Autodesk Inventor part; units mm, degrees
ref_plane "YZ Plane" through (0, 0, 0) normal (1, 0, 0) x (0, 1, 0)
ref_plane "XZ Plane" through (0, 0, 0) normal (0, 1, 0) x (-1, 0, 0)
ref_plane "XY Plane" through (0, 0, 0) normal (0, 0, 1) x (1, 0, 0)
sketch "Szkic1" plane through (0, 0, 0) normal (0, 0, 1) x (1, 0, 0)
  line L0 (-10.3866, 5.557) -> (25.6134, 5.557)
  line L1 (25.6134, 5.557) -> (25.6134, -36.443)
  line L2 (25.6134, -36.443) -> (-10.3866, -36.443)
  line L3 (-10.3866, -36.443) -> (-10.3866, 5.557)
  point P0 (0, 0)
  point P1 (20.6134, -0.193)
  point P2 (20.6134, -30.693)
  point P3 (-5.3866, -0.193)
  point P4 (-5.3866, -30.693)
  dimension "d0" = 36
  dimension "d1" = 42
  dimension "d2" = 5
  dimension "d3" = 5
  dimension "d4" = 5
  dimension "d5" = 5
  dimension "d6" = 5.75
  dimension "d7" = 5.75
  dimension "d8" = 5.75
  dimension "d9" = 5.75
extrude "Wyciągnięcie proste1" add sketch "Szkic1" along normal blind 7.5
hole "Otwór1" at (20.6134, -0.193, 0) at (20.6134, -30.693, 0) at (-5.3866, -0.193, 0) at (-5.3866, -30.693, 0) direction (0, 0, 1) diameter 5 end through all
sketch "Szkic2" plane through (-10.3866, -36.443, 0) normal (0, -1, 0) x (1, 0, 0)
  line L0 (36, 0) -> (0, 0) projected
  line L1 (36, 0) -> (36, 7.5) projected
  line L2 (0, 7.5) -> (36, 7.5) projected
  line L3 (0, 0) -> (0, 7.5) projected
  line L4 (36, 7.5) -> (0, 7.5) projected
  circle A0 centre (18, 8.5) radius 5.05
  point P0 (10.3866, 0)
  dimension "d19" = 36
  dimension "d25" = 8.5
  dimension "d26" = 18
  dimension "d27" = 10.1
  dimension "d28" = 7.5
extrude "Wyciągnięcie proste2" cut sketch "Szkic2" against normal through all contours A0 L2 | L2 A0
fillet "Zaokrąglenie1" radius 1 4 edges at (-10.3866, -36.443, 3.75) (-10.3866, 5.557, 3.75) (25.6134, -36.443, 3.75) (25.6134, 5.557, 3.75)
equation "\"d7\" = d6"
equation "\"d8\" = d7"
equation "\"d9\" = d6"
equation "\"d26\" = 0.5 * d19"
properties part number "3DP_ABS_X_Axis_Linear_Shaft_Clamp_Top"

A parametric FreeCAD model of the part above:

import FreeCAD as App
import Part
import Sketcher


def edges_at(feature, points):
    """Names of the edges that pass closest to the given points."""
    edges = feature.Shape.Edges
    near = lambda p: min(range(len(edges)), key=lambda i: edges[i].distToShape(Part.Vertex(*p))[0])
    return sorted({f"Edge{near(p) + 1}" for p in points})

doc = App.newDocument("Part")
body = doc.addObject("PartDesign::Body", "Body")

sketch1 = body.newObject("Sketcher::SketchObject", "Sketch")
sketch1.AttachmentSupport = (doc.getObject("XY_Plane"), [""])
sketch1.MapMode = "FlatFace"
sketch1.addGeometry([
    Part.LineSegment(App.Vector(26, 6, 0), App.Vector(-10, 6, 0)),
    Part.LineSegment(App.Vector(-10, 6, 0), App.Vector(-10, -36, 0)),
    Part.LineSegment(App.Vector(-10, -36, 0), App.Vector(26, -36, 0)),
    Part.LineSegment(App.Vector(26, -36, 0), App.Vector(26, 6, 0)),
], False)
sketch1.addConstraint([
    Sketcher.Constraint("Coincident", 0, 2, 1, 1),
    Sketcher.Constraint("Coincident", 1, 2, 2, 1),
    Sketcher.Constraint("Coincident", 2, 2, 3, 1),
    Sketcher.Constraint("Coincident", 3, 2, 0, 1),
    Sketcher.Constraint("Horizontal", 0),
    Sketcher.Constraint("Vertical", 1),
    Sketcher.Constraint("Horizontal", 2),
    Sketcher.Constraint("Vertical", 3),
    Sketcher.Constraint("DistanceX", 0, 2, 0, 1, 36.0),
    Sketcher.Constraint("DistanceY", 1, 2, 1, 1, 42.0),
    Sketcher.Constraint("DistanceY", -1, 1, 0, 2, 5.557),
    Sketcher.Constraint("DistanceX", 0, 2, -1, 1, 10.3866),
])
pad1 = body.newObject("PartDesign::Pad", "Pad")
pad1.Profile = sketch1
pad1.Length = 7.5

sketch2 = body.newObject("Sketcher::SketchObject", "Sketch001")
sketch2.AttachmentSupport = (doc.getObject("XY_Plane"), [""])
sketch2.MapMode = "FlatFace"
sketch2.addGeometry([
    Part.Circle(App.Vector(20.6, -0.2, 0), App.Vector(0, 0, 1), 2.5),
    Part.Circle(App.Vector(20.6, -30.7, 0), App.Vector(0, 0, 1), 2.5),
    Part.Circle(App.Vector(-5.4, -0.2, 0), App.Vector(0, 0, 1), 2.5),
    Part.Circle(App.Vector(-5.4, -30.7, 0), App.Vector(0, 0, 1), 2.5),
], False)
sketch2.addConstraint([
    Sketcher.Constraint("Equal", 0, 1),
    Sketcher.Constraint("Equal", 1, 2),
    Sketcher.Constraint("Equal", 2, 3),
    Sketcher.Constraint("Horizontal", 0, 3, 2, 3),
    Sketcher.Constraint("Horizontal", 1, 3, 3, 3),
    Sketcher.Constraint("Vertical", 0, 3, 1, 3),
    Sketcher.Constraint("Vertical", 2, 3, 3, 3),
    Sketcher.Constraint("Diameter", 0, 5.0),
    Sketcher.Constraint("DistanceX", 2, 3, 0, 3, 26.0),
    Sketcher.Constraint("DistanceY", 1, 3, 0, 3, 30.5),
    Sketcher.Constraint("DistanceY", 0, 3, -1, 1, 0.193),
    Sketcher.Constraint("DistanceX", -1, 1, 0, 3, 20.6134),
])
doc.recompute()
hole = body.newObject("PartDesign::Hole", "Hole")
hole.Profile = sketch2
hole.ThreadType = "None"
hole.Diameter = 5
hole.DepthType = "ThroughAll"
hole.Reversed = True

sketch3 = body.newObject("Sketcher::SketchObject", "Sketch002")
sketch3.AttachmentSupport = (doc.getObject("XZ_Plane"), [""])
sketch3.MapMode = "FlatFace"
sketch3.AttachmentOffset = App.Placement(App.Vector(0, 0, 36.443), App.Rotation())
sketch3.addGeometry(Part.Circle(App.Vector(8, 8, 0), App.Vector(0, 0, 1), 5), False)
sketch3.addConstraint([
    Sketcher.Constraint("Diameter", 0, 10.1),
    Sketcher.Constraint("DistanceY", -1, 1, 0, 3, 8.5),
    Sketcher.Constraint("DistanceX", -1, 1, 0, 3, 7.6134),
])
pocket1 = body.newObject("PartDesign::Pocket", "Pocket")
pocket1.Profile = sketch3
pocket1.Type = "ThroughAll"
doc.recompute()

fillet = body.newObject("PartDesign::Fillet", "Fillet")
fillet.Base = (pocket1, edges_at(pocket1, [
    (-10.387, -36.443, 3.75),
    (-10.387, 5.557, 3.75),
    (25.613, -36.443, 3.75),
    (25.613, 5.557, 3.75),
]))
fillet.Radius = 1

doc.recompute()
